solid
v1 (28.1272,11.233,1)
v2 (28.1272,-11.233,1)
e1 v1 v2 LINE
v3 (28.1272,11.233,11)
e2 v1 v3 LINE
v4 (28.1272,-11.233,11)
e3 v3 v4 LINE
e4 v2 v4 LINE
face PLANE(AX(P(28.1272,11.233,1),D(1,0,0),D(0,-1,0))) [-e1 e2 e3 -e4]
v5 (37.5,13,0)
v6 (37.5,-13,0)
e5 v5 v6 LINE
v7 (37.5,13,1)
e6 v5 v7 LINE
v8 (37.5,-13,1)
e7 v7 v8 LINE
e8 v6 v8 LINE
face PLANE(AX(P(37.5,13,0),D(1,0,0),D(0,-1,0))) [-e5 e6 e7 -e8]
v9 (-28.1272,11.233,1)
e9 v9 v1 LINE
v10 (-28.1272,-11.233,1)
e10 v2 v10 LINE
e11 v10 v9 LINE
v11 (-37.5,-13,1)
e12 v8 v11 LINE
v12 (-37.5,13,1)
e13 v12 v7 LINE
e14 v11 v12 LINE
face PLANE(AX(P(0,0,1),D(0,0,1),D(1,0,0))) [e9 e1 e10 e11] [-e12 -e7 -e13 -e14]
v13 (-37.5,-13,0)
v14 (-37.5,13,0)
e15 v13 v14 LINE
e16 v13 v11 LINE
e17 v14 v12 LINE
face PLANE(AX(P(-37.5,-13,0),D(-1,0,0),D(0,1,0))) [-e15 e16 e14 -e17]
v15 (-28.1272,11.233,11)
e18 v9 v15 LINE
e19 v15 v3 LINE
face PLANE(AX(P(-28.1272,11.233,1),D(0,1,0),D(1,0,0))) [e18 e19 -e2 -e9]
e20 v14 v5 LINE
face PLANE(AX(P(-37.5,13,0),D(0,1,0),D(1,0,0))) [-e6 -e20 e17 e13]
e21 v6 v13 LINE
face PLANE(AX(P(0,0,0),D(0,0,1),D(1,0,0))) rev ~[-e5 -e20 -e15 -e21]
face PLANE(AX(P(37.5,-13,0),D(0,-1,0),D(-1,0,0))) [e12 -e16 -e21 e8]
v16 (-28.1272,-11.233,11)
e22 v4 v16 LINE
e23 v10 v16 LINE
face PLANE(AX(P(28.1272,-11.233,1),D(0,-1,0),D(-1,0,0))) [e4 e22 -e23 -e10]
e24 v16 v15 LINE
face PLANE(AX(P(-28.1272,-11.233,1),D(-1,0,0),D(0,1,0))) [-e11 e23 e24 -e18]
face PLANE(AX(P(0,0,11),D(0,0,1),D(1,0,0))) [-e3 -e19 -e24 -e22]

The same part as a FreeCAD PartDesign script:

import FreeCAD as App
import Part
import Sketcher
Q = App.Units.Quantity

doc = App.newDocument("Part")
body = doc.addObject("PartDesign::Body", "Body")

sketch1 = body.newObject("Sketcher::SketchObject", "Sketch")
sketch1.AttachmentSupport = (doc.getObject("XY_Plane"), [""])
sketch1.MapMode = "FlatFace"
sketch1.addGeometry(Part.LineSegment(App.Vector(-38, -13, 0), App.Vector(38, -13, 0)), False)
sketch1.addGeometry(Part.LineSegment(App.Vector(38, -13, 0), App.Vector(38, 13, 0)), False)
sketch1.addGeometry(Part.LineSegment(App.Vector(38, 13, 0), App.Vector(-38, 13, 0)), False)
sketch1.addGeometry(Part.LineSegment(App.Vector(-38, 13, 0), App.Vector(-38, -13, 0)), False)
sketch1.addConstraint(Sketcher.Constraint("Coincident", 0, 2, 1, 1))
sketch1.addConstraint(Sketcher.Constraint("Coincident", 1, 2, 2, 1))
sketch1.addConstraint(Sketcher.Constraint("Coincident", 2, 2, 3, 1))
sketch1.addConstraint(Sketcher.Constraint("Coincident", 3, 2, 0, 1))
sketch1.addConstraint(Sketcher.Constraint("Horizontal", 0))
sketch1.addConstraint(Sketcher.Constraint("Vertical", 1))
sketch1.addConstraint(Sketcher.Constraint("Horizontal", 2))
sketch1.addConstraint(Sketcher.Constraint("Vertical", 3))
sketch1.addConstraint(Sketcher.Constraint("Symmetric", 0, 2, 2, 2, -1, 1))
sketch1.addConstraint(Sketcher.Constraint("DistanceX", 0, 1, 0, 2, Q("75 mm")))
sketch1.addConstraint(Sketcher.Constraint("DistanceY", 1, 1, 1, 2, Q("26 mm")))
pad1 = body.newObject("PartDesign::Pad", "Pad")
pad1.Profile = sketch1
pad1.Length = 1

sketch2 = body.newObject("Sketcher::SketchObject", "Sketch001")
sketch2.AttachmentSupport = (doc.getObject("XY_Plane"), [""])
sketch2.MapMode = "FlatFace"
sketch2.AttachmentOffset = App.Placement(App.Vector(0, 0, 1), App.Rotation())
sketch2.addGeometry(Part.LineSegment(App.Vector(-28, -11, 0), App.Vector(28, -11, 0)), False)
sketch2.addGeometry(Part.LineSegment(App.Vector(28, -11, 0), App.Vector(28, 11, 0)), False)
sketch2.addGeometry(Part.LineSegment(App.Vector(28, 11, 0), App.Vector(-28, 11, 0)), False)
sketch2.addGeometry(Part.LineSegment(App.Vector(-28, 11, 0), App.Vector(-28, -11, 0)), False)
sketch2.addConstraint(Sketcher.Constraint("Coincident", 0, 2, 1, 1))
sketch2.addConstraint(Sketcher.Constraint("Coincident", 1, 2, 2, 1))
sketch2.addConstraint(Sketcher.Constraint("Coincident", 2, 2, 3, 1))
sketch2.addConstraint(Sketcher.Constraint("Coincident", 3, 2, 0, 1))
sketch2.addConstraint(Sketcher.Constraint("Horizontal", 0))
sketch2.addConstraint(Sketcher.Constraint("Vertical", 1))
sketch2.addConstraint(Sketcher.Constraint("Horizontal", 2))
sketch2.addConstraint(Sketcher.Constraint("Vertical", 3))
sketch2.addConstraint(Sketcher.Constraint("Symmetric", 0, 2, 2, 2, -1, 1))
sketch2.addConstraint(Sketcher.Constraint("DistanceY", 1, 1, 1, 2, Q("22.466 mm")))
sketch2.addConstraint(Sketcher.Constraint("DistanceX", 0, 1, 0, 2, Q("56.2544 mm")))
pad2 = body.newObject("PartDesign::Pad", "Pad001")
pad2.Profile = sketch2
pad2.Length = 10

doc.recompute()
